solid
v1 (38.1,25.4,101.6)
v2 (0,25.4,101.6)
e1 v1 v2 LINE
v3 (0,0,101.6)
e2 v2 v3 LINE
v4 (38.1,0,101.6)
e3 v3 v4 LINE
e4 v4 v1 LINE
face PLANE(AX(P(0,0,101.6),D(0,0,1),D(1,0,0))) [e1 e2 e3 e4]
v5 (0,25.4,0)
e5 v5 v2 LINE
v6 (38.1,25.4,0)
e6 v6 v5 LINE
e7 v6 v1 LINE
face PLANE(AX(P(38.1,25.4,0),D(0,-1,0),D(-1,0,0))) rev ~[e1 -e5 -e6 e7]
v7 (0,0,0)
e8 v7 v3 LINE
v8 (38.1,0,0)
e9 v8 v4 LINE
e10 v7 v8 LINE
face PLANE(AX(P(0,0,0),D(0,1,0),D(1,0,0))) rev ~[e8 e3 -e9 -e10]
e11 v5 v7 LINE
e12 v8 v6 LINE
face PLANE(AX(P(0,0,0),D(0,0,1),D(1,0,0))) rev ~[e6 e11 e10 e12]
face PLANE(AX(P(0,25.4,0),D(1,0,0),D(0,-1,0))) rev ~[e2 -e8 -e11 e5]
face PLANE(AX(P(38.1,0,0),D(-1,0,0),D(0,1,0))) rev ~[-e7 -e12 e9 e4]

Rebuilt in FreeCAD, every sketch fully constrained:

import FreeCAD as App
import Part
import Sketcher
Q = App.Units.Quantity

doc = App.newDocument("Part")
body = doc.addObject("PartDesign::Body", "Body")

sketch1 = body.newObject("Sketcher::SketchObject", "Sketch")
sketch1.AttachmentSupport = (doc.getObject("XY_Plane"), [""])
sketch1.MapMode = "FlatFace"
sketch1.addGeometry([
    Part.LineSegment(App.Vector(0, 25, 0), App.Vector(0, 0, 0)),
    Part.LineSegment(App.Vector(0, 0, 0), App.Vector(38, 0, 0)),
    Part.LineSegment(App.Vector(38, 0, 0), App.Vector(38, 25, 0)),
    Part.LineSegment(App.Vector(38, 25, 0), App.Vector(0, 25, 0)),
], False)
sketch1.addConstraint([
    Sketcher.Constraint("Coincident", 0, 2, 1, 1),
    Sketcher.Constraint("Coincident", 1, 2, 2, 1),
    Sketcher.Constraint("Coincident", 2, 2, 3, 1),
    Sketcher.Constraint("Coincident", 3, 2, 0, 1),
    Sketcher.Constraint("Vertical", 0),
    Sketcher.Constraint("Horizontal", 1),
    Sketcher.Constraint("Vertical", 2),
    Sketcher.Constraint("Horizontal", 3),
    Sketcher.Constraint("Coincident", 0, 2, -1, 1),
    Sketcher.Constraint("DistanceY", 0, 2, 0, 1, Q("1 in")),
    Sketcher.Constraint("DistanceX", 1, 1, 1, 2, Q("1.5 in")),
])
pad1 = body.newObject("PartDesign::Pad", "Pad")
pad1.Profile = sketch1
pad1.Length = Q("4 in")

doc.recompute()
